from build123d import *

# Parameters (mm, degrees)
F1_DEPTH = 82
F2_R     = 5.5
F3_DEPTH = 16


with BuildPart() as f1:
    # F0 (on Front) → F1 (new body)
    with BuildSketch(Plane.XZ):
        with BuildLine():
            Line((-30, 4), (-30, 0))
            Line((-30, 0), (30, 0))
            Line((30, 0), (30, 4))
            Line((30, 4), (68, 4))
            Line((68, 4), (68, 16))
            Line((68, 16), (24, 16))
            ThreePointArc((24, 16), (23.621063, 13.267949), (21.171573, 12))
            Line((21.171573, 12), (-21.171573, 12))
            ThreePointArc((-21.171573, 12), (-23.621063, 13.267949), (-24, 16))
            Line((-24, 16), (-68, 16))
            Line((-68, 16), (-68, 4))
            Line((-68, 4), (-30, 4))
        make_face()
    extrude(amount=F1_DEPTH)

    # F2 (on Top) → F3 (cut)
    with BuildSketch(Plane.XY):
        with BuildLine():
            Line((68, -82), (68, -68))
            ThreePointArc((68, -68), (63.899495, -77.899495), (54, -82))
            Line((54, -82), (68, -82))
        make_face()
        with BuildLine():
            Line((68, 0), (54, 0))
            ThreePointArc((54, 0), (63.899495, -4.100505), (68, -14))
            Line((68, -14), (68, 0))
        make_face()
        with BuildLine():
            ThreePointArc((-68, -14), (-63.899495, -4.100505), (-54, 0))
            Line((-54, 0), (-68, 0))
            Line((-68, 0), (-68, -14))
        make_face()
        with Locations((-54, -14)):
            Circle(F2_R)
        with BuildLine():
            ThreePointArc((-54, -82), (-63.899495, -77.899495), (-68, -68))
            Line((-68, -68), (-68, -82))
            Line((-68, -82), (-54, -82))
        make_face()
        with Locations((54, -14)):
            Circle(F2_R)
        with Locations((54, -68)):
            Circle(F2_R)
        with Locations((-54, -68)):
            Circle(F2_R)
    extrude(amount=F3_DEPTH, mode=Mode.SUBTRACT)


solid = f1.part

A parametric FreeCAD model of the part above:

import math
import FreeCAD as App
import Part
import Sketcher
Q = App.Units.Quantity

doc = App.newDocument("Part")
body = doc.addObject("PartDesign::Body", "Body")

sketch1 = body.newObject("Sketcher::SketchObject", "Sketch")
sketch1.AttachmentSupport = (doc.getObject("XZ_Plane"), [""])
sketch1.MapMode = "FlatFace"
sketch1.addGeometry([
    Part.LineSegment(App.Vector(-30, 4, 0), App.Vector(-30, 0, 0)),
    Part.LineSegment(App.Vector(-30, 0, 0), App.Vector(30, 0, 0)),
    Part.LineSegment(App.Vector(30, 0, 0), App.Vector(30, 4, 0)),
    Part.LineSegment(App.Vector(30, 4, 0), App.Vector(68, 4, 0)),
    Part.LineSegment(App.Vector(68, 4, 0), App.Vector(68, 16, 0)),
    Part.LineSegment(App.Vector(68, 16, 0), App.Vector(24, 16, 0)),
    Part.ArcOfCircle(Part.Circle(App.Vector(21.2, 15, 0), App.Vector(0, 0, 1), 3), math.radians(-90), math.radians(19)),
    Part.LineSegment(App.Vector(21.2, 12, 0), App.Vector(-21.2, 12, 0)),
    Part.ArcOfCircle(Part.Circle(App.Vector(-21.2, 15, 0), App.Vector(0, 0, 1), 3), math.radians(161), math.radians(270)),
    Part.LineSegment(App.Vector(-24, 16, 0), App.Vector(-68, 16, 0)),
    Part.LineSegment(App.Vector(-68, 16, 0), App.Vector(-68, 4, 0)),
    Part.LineSegment(App.Vector(-68, 4, 0), App.Vector(-30, 4, 0)),
], False)
sketch1.addConstraint([
    Sketcher.Constraint("Coincident", 0, 2, 1, 1),
    Sketcher.Constraint("Coincident", 1, 2, 2, 1),
    Sketcher.Constraint("Coincident", 2, 2, 3, 1),
    Sketcher.Constraint("Coincident", 3, 2, 4, 1),
    Sketcher.Constraint("Coincident", 4, 2, 5, 1),
    Sketcher.Constraint("Coincident", 5, 2, 6, 2),
    Sketcher.Constraint("Tangent", 6, 1, 7, 1),
    Sketcher.Constraint("Tangent", 7, 2, 8, 2),
    Sketcher.Constraint("Coincident", 8, 1, 9, 1),
    Sketcher.Constraint("Coincident", 9, 2, 10, 1),
    Sketcher.Constraint("Coincident", 10, 2, 11, 1),
    Sketcher.Constraint("Coincident", 11, 2, 0, 1),
    Sketcher.Constraint("Vertical", 0),
    Sketcher.Constraint("Horizontal", 1),
    Sketcher.Constraint("Vertical", 2),
    Sketcher.Constraint("Horizontal", 3),
    Sketcher.Constraint("Vertical", 4),
    Sketcher.Constraint("Horizontal", 5),
    Sketcher.Constraint("Horizontal", 7),
    Sketcher.Constraint("Horizontal", 9),
    Sketcher.Constraint("Vertical", 10),
    Sketcher.Constraint("Horizontal", 11),
    Sketcher.Constraint("Equal", 6, 8),
    Sketcher.Constraint("Symmetric", 0, 2, 1, 2, -1, 1),
    Sketcher.Constraint("Symmetric", 5, 2, 8, 1, -2),
    Sketcher.Constraint("Symmetric", 3, 2, 10, 2, -2),
    Sketcher.Constraint("Radius", 6, Q("2.999999 mm")),
    Sketcher.Constraint("DistanceX", 1, 1, 1, 2, Q("60 mm")),
    Sketcher.Constraint("DistanceX", 3, 1, 3, 2, Q("38 mm")),
    Sketcher.Constraint("DistanceX", 5, 2, 5, 1, Q("44 mm")),
    Sketcher.Constraint("DistanceY", 0, 2, 0, 1, Q("4 mm")),
    Sketcher.Constraint("DistanceY", 4, 1, 4, 2, Q("12 mm")),
    Sketcher.Constraint("DistanceY", -1, 1, 6, 3, Q("14.999999 mm")),
])
pad1 = body.newObject("PartDesign::Pad", "Pad")
pad1.Profile = sketch1
pad1.Length = 82

sketch2 = body.newObject("Sketcher::SketchObject", "Sketch001")
sketch2.AttachmentSupport = (doc.getObject("XY_Plane"), [""])
sketch2.MapMode = "FlatFace"
sketch2.addGeometry([
    Part.LineSegment(App.Vector(68, -82, 0), App.Vector(68, -68, 0)),
    Part.ArcOfCircle(Part.Circle(App.Vector(54, -68, 0), App.Vector(0, 0, 1), 14), math.radians(-90), math.radians(0)),
    Part.LineSegment(App.Vector(54, -82, 0), App.Vector(68, -82, 0)),
    Part.LineSegment(App.Vector(68, 0, 0), App.Vector(54, 0, 0)),
    Part.ArcOfCircle(Part.Circle(App.Vector(54, -14, 0), App.Vector(0, 0, 1), 14), math.radians(0), math.radians(90)),
    Part.LineSegment(App.Vector(68, -14, 0), App.Vector(68, 0, 0)),
    Part.ArcOfCircle(Part.Circle(App.Vector(-54, -14, 0), App.Vector(0, 0, 1), 14), math.radians(90), math.radians(180)),
    Part.LineSegment(App.Vector(-54, 0, 0), App.Vector(-68, 0, 0)),
    Part.LineSegment(App.Vector(-68, 0, 0), App.Vector(-68, -14, 0)),
    Part.Circle(App.Vector(-54, -14, 0), App.Vector(0, 0, 1), 6),
    Part.ArcOfCircle(Part.Circle(App.Vector(-54, -68, 0), App.Vector(0, 0, 1), 14), math.radians(180), math.radians(270)),
    Part.LineSegment(App.Vector(-68, -68, 0), App.Vector(-68, -82, 0)),
    Part.LineSegment(App.Vector(-68, -82, 0), App.Vector(-54, -82, 0)),
    Part.Circle(App.Vector(54, -14, 0), App.Vector(0, 0, 1), 6),
    Part.Circle(App.Vector(54, -68, 0), App.Vector(0, 0, 1), 6),
    Part.Circle(App.Vector(-54, -68, 0), App.Vector(0, 0, 1), 6),
], False)
sketch2.addConstraint([
    Sketcher.Constraint("Tangent", 0, 2, 1, 2),
    Sketcher.Constraint("Tangent", 1, 1, 2, 1),
    Sketcher.Constraint("Coincident", 2, 2, 0, 1),
    Sketcher.Constraint("Tangent", 3, 2, 4, 2),
    Sketcher.Constraint("Tangent", 4, 1, 5, 1),
    Sketcher.Constraint("Coincident", 5, 2, 3, 1),
    Sketcher.Constraint("Tangent", 6, 1, 7, 1),
    Sketcher.Constraint("Coincident", 7, 2, 8, 1),
    Sketcher.Constraint("Tangent", 8, 2, 6, 2),
    Sketcher.Constraint("Tangent", 10, 1, 11, 1),
    Sketcher.Constraint("Coincident", 11, 2, 12, 1),
    Sketcher.Constraint("Tangent", 12, 2, 10, 2),
    Sketcher.Constraint("Vertical", 0),
    Sketcher.Constraint("Horizontal", 2),
    Sketcher.Constraint("Horizontal", 3),
    Sketcher.Constraint("Vertical", 5),
    Sketcher.Constraint("Horizontal", 7),
    Sketcher.Constraint("Vertical", 8),
    Sketcher.Constraint("Vertical", 11),
    Sketcher.Constraint("Horizontal", 12),
    Sketcher.Constraint("Coincident", 9, 3, 6, 3),
    Sketcher.Constraint("Coincident", 13, 3, 4, 3),
    Sketcher.Constraint("Coincident", 14, 3, 1, 3),
    Sketcher.Constraint("Coincident", 15, 3, 10, 3),
    Sketcher.Constraint("Equal", 1, 4),
    Sketcher.Constraint("Equal", 4, 6),
    Sketcher.Constraint("Equal", 6, 10),
    Sketcher.Constraint("Equal", 9, 13),
    Sketcher.Constraint("Equal", 13, 14),
    Sketcher.Constraint("Equal", 14, 15),
    Sketcher.Constraint("Symmetric", 3, 2, 6, 1, -1, 1),
    Sketcher.Constraint("Symmetric", 1, 3, 10, 3, -2),
    Sketcher.Constraint("PointOnObject", 3, 2, -1),
    Sketcher.Constraint("Vertical", 1, 3, 4, 3),
    Sketcher.Constraint("Diameter", 9, Q("11 mm")),
    Sketcher.Constraint("Radius", 1, Q("14 mm")),
    Sketcher.Constraint("DistanceX", -1, 1, 1, 3, Q("54 mm")),
    Sketcher.Constraint("DistanceY", 1, 3, -1, 1, Q("68 mm")),
])
pocket1 = body.newObject("PartDesign::Pocket", "Pocket")
pocket1.Profile = sketch2
pocket1.Length = 16
pocket1.Reversed = True

doc.recompute()
